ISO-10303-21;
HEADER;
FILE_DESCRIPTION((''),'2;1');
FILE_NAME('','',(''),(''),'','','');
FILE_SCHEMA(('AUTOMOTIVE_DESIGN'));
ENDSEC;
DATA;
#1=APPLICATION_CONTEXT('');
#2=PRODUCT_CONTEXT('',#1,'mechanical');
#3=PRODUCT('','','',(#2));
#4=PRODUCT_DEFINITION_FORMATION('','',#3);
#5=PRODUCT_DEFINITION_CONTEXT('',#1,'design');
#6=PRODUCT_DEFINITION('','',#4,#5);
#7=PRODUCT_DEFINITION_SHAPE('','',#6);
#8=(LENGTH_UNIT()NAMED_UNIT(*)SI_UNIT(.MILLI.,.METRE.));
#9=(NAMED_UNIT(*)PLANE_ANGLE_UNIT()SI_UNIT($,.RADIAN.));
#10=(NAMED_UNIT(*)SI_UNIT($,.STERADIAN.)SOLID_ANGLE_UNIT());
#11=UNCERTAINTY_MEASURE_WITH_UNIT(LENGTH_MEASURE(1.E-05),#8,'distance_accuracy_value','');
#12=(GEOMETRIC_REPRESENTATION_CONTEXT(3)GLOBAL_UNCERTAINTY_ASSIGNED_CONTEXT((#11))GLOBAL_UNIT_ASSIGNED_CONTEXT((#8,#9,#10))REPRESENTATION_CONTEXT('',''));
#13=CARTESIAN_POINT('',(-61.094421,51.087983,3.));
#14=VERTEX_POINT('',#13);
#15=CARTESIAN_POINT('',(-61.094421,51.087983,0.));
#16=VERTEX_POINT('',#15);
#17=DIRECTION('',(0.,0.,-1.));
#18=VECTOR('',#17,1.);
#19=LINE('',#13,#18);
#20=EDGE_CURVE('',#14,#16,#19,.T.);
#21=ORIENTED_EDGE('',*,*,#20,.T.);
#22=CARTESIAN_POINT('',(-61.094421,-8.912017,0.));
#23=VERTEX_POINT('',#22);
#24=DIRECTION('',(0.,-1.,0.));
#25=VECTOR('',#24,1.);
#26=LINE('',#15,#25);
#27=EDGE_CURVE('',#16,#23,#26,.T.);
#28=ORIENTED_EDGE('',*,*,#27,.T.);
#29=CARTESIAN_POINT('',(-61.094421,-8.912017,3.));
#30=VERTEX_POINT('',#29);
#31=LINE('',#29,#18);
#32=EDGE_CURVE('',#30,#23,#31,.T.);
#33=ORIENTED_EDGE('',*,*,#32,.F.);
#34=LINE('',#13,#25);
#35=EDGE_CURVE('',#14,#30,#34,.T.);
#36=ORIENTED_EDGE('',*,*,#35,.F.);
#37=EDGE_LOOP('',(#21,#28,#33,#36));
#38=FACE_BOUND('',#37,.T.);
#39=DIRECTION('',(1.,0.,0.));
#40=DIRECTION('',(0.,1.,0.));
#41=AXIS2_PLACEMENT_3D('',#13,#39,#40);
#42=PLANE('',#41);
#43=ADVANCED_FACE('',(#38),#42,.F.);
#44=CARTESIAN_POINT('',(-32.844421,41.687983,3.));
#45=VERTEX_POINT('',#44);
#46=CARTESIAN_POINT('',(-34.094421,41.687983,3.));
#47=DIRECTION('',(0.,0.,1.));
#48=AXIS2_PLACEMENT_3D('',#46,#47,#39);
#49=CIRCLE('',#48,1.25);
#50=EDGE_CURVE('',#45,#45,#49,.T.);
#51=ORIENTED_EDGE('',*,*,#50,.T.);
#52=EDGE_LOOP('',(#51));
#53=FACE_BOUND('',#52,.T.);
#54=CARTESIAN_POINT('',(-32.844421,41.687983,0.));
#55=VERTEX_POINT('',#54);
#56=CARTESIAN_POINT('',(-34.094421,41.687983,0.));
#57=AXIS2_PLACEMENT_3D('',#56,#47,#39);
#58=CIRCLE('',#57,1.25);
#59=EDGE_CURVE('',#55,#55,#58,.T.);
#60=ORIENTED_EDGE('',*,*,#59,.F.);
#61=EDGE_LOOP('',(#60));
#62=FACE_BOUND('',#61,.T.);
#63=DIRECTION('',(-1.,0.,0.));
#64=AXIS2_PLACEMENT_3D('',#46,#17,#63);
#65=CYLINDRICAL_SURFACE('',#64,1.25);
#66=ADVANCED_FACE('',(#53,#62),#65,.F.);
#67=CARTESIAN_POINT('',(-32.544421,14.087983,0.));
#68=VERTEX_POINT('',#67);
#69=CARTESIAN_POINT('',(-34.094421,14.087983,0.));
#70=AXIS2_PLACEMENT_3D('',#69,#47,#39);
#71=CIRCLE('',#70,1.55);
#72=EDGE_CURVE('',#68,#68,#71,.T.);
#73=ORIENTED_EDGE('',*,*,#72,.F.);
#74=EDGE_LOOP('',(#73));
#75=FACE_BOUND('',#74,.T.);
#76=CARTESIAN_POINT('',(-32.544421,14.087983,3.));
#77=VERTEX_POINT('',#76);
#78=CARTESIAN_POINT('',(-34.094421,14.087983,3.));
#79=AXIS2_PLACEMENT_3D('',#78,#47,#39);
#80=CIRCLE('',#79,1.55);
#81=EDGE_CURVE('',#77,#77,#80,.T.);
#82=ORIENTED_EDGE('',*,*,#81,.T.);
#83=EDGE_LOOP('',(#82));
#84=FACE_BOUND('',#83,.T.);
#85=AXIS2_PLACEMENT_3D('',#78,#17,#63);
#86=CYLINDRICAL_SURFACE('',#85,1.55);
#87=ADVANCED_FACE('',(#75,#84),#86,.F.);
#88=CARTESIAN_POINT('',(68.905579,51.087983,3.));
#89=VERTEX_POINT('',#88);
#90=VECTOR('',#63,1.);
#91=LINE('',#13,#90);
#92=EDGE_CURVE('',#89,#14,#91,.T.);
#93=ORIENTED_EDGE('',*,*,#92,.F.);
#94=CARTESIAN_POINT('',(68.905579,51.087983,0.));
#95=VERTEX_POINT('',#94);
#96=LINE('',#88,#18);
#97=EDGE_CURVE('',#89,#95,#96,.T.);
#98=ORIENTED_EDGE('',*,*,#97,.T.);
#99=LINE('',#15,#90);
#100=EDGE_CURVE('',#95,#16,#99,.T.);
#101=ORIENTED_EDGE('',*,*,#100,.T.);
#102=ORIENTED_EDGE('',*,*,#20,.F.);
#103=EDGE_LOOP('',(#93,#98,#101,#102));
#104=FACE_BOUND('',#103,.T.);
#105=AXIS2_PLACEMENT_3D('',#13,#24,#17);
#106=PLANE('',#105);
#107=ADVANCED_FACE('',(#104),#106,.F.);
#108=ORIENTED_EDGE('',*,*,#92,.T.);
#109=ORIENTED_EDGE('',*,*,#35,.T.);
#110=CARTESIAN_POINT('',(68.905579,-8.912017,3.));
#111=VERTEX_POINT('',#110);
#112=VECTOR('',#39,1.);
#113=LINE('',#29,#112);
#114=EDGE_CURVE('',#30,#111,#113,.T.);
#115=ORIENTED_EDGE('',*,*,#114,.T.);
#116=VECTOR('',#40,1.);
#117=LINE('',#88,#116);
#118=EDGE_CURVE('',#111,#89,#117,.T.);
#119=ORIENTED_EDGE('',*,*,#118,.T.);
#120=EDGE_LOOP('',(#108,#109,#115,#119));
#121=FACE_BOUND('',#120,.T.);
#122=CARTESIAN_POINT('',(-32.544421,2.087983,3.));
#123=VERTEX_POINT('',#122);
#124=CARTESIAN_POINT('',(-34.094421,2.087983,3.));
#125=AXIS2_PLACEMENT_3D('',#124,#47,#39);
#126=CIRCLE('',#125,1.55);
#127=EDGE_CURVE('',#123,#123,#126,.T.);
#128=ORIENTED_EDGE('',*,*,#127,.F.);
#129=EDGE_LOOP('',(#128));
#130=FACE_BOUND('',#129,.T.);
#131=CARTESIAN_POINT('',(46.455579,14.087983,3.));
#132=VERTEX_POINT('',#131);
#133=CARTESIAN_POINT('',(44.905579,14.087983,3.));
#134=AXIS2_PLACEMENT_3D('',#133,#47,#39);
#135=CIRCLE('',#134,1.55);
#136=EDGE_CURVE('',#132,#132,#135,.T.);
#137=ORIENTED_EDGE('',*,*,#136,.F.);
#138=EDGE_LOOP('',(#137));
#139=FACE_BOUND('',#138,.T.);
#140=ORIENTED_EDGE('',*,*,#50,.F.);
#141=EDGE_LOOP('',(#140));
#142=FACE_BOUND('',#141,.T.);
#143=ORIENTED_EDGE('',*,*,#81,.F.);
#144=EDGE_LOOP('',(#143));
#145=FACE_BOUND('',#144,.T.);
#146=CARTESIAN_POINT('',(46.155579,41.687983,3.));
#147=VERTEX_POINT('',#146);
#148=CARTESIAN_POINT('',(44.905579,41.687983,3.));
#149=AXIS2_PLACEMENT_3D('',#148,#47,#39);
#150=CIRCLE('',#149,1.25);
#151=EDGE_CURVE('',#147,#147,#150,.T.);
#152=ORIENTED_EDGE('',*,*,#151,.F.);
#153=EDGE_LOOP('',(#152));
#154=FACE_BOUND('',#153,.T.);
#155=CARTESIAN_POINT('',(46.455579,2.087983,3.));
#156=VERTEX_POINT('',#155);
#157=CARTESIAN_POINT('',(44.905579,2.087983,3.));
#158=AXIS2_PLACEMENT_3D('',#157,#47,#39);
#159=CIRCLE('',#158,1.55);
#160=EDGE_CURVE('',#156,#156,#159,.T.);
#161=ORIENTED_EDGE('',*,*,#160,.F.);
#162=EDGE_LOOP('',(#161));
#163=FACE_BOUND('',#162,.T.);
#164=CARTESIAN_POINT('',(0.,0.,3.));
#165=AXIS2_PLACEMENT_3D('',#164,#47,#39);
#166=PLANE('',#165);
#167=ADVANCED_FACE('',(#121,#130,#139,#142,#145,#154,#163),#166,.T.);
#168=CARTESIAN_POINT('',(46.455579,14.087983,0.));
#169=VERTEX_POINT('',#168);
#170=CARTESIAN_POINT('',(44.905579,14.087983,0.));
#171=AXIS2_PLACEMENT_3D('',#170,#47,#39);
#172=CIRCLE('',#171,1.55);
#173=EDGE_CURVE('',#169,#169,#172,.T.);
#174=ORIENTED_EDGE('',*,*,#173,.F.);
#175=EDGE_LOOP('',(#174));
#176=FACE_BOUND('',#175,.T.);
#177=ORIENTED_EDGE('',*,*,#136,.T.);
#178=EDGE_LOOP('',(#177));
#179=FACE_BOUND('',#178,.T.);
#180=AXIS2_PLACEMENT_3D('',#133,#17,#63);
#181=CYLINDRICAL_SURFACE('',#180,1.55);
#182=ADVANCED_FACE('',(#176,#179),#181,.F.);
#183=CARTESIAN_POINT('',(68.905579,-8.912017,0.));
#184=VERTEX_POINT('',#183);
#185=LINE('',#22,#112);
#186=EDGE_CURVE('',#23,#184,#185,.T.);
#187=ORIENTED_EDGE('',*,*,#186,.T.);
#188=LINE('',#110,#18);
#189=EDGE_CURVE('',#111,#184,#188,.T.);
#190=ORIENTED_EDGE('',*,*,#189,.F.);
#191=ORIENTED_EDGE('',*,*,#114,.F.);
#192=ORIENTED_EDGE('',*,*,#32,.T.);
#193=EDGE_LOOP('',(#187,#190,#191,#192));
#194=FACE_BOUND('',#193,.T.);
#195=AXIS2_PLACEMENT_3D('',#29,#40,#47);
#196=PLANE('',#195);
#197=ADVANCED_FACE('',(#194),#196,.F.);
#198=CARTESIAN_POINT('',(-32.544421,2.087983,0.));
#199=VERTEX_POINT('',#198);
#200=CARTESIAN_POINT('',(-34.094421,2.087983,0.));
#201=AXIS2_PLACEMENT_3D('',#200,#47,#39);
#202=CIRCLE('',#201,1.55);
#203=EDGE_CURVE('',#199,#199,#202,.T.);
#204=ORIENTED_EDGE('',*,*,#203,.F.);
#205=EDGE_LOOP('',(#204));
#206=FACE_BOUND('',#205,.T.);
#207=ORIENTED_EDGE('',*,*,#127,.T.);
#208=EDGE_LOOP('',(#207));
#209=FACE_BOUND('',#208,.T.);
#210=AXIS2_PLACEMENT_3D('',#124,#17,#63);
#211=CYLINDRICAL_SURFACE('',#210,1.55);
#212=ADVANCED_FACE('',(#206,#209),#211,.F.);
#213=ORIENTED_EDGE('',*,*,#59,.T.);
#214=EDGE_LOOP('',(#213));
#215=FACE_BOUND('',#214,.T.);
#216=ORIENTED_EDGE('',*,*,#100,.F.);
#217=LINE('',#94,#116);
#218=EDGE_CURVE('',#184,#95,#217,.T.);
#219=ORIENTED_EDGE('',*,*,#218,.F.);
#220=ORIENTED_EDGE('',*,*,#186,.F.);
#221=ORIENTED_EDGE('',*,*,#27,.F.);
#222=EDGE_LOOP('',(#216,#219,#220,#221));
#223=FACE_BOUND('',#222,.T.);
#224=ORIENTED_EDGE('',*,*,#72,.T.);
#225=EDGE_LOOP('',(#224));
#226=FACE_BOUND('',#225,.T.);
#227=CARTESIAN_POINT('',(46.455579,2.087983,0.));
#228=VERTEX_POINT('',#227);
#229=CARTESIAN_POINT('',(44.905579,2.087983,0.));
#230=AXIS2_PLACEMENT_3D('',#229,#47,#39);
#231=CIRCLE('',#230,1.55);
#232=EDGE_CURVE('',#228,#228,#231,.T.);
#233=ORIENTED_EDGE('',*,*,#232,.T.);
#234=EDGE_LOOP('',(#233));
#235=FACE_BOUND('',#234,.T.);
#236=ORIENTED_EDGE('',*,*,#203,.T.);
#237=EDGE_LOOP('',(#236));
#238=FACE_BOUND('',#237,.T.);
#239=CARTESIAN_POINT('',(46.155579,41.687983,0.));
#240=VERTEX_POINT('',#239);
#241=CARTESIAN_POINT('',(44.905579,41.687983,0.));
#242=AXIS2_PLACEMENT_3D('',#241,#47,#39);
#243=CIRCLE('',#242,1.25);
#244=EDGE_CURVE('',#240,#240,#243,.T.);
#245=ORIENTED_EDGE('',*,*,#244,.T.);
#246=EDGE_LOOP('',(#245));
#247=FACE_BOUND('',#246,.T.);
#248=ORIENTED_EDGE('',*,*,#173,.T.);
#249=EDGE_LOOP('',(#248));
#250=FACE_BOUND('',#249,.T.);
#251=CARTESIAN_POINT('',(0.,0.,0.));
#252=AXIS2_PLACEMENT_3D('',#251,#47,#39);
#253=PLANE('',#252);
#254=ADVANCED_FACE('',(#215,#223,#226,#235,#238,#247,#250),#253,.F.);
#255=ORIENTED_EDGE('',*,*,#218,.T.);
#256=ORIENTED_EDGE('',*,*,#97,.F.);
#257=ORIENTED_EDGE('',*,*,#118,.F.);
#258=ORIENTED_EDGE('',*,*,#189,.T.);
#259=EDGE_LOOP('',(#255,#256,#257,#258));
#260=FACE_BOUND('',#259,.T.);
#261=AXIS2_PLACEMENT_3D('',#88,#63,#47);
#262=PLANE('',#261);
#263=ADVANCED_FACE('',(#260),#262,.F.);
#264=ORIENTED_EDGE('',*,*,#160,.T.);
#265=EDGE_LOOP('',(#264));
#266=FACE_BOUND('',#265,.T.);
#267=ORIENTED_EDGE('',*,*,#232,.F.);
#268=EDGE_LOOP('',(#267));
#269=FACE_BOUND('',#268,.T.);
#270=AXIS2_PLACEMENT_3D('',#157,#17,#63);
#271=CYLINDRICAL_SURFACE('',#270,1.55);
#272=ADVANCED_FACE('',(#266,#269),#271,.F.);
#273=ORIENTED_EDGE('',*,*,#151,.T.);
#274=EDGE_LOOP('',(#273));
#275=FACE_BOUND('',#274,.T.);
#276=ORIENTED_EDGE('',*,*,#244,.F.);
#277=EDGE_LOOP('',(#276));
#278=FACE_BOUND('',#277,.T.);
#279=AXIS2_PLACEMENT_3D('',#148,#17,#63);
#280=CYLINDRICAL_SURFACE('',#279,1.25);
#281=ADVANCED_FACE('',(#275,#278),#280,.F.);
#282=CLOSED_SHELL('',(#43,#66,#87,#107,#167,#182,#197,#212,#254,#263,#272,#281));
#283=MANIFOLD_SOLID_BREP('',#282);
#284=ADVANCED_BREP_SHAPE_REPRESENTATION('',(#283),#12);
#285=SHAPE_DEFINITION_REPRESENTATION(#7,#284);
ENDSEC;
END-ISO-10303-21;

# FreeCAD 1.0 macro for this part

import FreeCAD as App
import Part
import Sketcher

V = App.Vector


def add_polygon(sketch, points):
    """Adds a closed chain of lines whose ends are joined by coincident constraints."""
    first, n = sketch.GeometryCount, len(points)
    for a, b in zip(points, points[1:] + points[:1]):
        sketch.addGeometry(Part.LineSegment(App.Vector(*a, 0), App.Vector(*b, 0)), False)
    for i in range(n):
        sketch.addConstraint(Sketcher.Constraint("Coincident", first + i, 2, first + (i + 1) % n, 1))

doc = App.newDocument("Part")
body = doc.addObject("PartDesign::Body", "Body")

# Sketch on XY plane
sketch1 = doc.addObject("Sketcher::SketchObject", "Sketch")
body.addObject(sketch1)
sketch1.AttachmentSupport = (doc.XY_Plane, [""])
sketch1.MapMode = "FlatFace"
add_polygon(sketch1, [(-61.1, 51.1), (-61.1, -8.9), (68.9, -8.9), (68.9, 51.1)])  # lines 0-3
sketch1.addGeometry(Part.Circle(V(-34.1, 2.1, 0), V(0, 0, 1), 1.6), False)  # 4
sketch1.addGeometry(Part.Circle(V(-34.1, 14.1, 0), V(0, 0, 1), 1.6), False)  # 5
sketch1.addGeometry(Part.Circle(V(44.9, 2.1, 0), V(0, 0, 1), 1.6), False)  # 6
sketch1.addGeometry(Part.Circle(V(44.9, 14.1, 0), V(0, 0, 1), 1.6), False)  # 7
sketch1.addGeometry(Part.Circle(V(-34.1, 41.7, 0), V(0, 0, 1), 1.2), False)  # 8
sketch1.addGeometry(Part.Circle(V(44.9, 41.7, 0), V(0, 0, 1), 1.2), False)  # 9
sketch1.addConstraint([
    Sketcher.Constraint("Vertical", 0),
    Sketcher.Constraint("Horizontal", 1),
    Sketcher.Constraint("Vertical", 2),
    Sketcher.Constraint("Horizontal", 3),
    Sketcher.Constraint("Equal", 4, 5),
    Sketcher.Constraint("Equal", 5, 6),
    Sketcher.Constraint("Equal", 6, 7),
    Sketcher.Constraint("Equal", 8, 9),
    Sketcher.Constraint("Horizontal", 4, 3, 6, 3),
    Sketcher.Constraint("Horizontal", 5, 3, 7, 3),
    Sketcher.Constraint("Horizontal", 8, 3, 9, 3),
    Sketcher.Constraint("Vertical", 4, 3, 5, 3),
    Sketcher.Constraint("Vertical", 6, 3, 7, 3),
    Sketcher.Constraint("Vertical", 5, 3, 8, 3),
    Sketcher.Constraint("Vertical", 7, 3, 9, 3),
    Sketcher.Constraint("Diameter", 4, 3.1),
    Sketcher.Constraint("Diameter", 8, 2.5),
    Sketcher.Constraint("DistanceX", 1, 1, 1, 2, 130.0),
    Sketcher.Constraint("DistanceY", 0, 2, 0, 1, 60.0),
    Sketcher.Constraint("DistanceY", 4, 3, 5, 3, 12.0),
    Sketcher.Constraint("DistanceX", 4, 3, 6, 3, 79.0),
    Sketcher.Constraint("DistanceX", 0, 2, 4, 3, 27.0),
    Sketcher.Constraint("DistanceY", 0, 2, 4, 3, 11.0),
    Sketcher.Constraint("DistanceY", 5, 3, 8, 3, 27.6),
    Sketcher.Constraint("DistanceX", 4, 3, -1, 1, 34.094421),
    Sketcher.Constraint("DistanceY", -1, 1, 4, 3, 2.087983),
])
pad1 = doc.addObject("PartDesign::Pad", "Pad")
body.addObject(pad1)
pad1.Profile = sketch1
pad1.Length = 3

doc.recompute()
